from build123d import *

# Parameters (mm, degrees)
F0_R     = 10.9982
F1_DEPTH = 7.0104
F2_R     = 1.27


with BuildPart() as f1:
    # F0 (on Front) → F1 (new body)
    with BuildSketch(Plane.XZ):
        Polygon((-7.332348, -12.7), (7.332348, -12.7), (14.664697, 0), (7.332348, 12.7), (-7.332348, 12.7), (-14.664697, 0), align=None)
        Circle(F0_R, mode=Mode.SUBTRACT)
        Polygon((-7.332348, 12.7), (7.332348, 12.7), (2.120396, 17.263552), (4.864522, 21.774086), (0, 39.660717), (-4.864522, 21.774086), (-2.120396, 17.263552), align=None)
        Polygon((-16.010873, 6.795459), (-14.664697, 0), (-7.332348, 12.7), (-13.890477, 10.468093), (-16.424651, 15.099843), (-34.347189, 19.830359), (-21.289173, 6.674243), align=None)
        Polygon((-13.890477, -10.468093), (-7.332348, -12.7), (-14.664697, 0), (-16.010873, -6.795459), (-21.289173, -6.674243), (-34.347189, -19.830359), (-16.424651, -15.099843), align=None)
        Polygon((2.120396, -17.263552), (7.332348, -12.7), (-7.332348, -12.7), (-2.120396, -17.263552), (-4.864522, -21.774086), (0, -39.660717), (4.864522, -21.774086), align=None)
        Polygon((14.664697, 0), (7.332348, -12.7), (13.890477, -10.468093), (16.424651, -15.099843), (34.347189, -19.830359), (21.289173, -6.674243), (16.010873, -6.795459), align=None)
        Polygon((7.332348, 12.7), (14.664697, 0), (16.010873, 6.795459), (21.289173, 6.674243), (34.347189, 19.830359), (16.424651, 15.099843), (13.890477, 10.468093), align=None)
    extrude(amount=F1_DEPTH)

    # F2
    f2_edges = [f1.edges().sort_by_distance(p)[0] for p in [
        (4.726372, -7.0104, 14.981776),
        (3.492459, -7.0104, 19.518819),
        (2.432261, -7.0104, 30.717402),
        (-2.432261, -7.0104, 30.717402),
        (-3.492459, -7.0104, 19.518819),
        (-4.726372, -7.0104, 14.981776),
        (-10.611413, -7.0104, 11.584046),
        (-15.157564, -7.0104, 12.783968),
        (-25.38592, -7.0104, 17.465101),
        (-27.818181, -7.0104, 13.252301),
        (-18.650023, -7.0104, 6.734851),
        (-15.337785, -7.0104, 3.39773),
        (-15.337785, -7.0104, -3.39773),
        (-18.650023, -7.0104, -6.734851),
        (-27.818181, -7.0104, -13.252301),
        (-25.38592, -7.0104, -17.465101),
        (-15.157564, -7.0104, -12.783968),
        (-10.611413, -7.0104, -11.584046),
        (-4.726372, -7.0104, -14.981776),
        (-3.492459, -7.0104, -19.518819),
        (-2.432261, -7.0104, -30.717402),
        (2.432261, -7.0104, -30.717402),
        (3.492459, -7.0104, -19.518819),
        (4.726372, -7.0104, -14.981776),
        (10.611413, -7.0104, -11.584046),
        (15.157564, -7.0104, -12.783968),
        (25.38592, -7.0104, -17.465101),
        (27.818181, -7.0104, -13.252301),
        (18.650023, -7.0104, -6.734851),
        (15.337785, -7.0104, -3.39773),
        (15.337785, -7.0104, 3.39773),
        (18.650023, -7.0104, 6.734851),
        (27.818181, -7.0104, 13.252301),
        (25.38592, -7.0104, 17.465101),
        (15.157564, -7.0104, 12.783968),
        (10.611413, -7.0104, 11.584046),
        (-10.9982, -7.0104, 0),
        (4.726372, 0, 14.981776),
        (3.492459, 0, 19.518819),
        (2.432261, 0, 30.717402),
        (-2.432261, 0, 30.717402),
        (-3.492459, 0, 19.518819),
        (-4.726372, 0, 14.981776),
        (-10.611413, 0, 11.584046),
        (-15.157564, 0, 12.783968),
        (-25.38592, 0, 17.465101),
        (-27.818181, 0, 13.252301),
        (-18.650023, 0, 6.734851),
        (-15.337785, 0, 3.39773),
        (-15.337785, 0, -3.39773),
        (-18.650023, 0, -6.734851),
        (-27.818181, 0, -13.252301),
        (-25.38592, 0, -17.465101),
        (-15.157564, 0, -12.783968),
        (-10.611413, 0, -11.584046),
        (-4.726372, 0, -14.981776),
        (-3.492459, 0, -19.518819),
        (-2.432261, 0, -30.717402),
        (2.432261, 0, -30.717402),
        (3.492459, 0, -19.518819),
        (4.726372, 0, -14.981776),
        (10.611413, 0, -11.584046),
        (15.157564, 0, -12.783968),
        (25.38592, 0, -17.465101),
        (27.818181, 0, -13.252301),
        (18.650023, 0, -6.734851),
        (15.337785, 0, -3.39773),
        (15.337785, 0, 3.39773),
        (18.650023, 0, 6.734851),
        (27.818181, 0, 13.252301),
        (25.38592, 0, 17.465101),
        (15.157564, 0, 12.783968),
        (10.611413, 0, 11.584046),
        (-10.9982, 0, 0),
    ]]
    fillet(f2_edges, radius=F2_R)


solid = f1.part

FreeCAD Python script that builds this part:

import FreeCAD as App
import Part
import Sketcher

V = App.Vector
Q = App.Units.Quantity


def edges_at(feature, points):
    """Names of the edges that pass closest to the given points."""
    edges = feature.Shape.Edges
    near = lambda p: min(range(len(edges)), key=lambda i: edges[i].distToShape(Part.Vertex(*p))[0])
    return sorted({f"Edge{near(p) + 1}" for p in points})


def add_polygon(sketch, points):
    """Adds a closed chain of lines whose ends are joined by coincident constraints."""
    first, n = sketch.GeometryCount, len(points)
    for a, b in zip(points, points[1:] + points[:1]):
        sketch.addGeometry(Part.LineSegment(App.Vector(*a, 0), App.Vector(*b, 0)), False)
    for i in range(n):
        sketch.addConstraint(Sketcher.Constraint("Coincident", first + i, 2, first + (i + 1) % n, 1))

doc = App.newDocument("Part")
body = doc.addObject("PartDesign::Body", "Body")

sketch1 = body.newObject("Sketcher::SketchObject", "Sketch")
sketch1.AttachmentSupport = (doc.getObject("XZ_Plane"), [""])
sketch1.MapMode = "FlatFace"
add_polygon(sketch1, [(7, 13), (2, 17), (5, 22), (0, 40), (-5, 22), (-2, 17), (-7, 13), (-14, 10), (-16, 15), (-34, 20), (-21, 7), (-16, 7), (-15, 0), (-16, -7), (-21, -7), (-34, -20), (-16, -15), (-14, -10), (-7, -13), (-2, -17), (-5, -22), (0, -40), (5, -22), (2, -17), (7, -13), (14, -10), (16, -15), (34, -20), (21, -7), (16, -7), (15, 0), (16, 7), (21, 7), (34, 20), (16, 15), (14, 10)])
sketch1.addGeometry(Part.Circle(V(0, 0, 0), V(0, 0, 1), 11), False)
sketch1.addConstraint([
    Sketcher.Constraint("Coincident", 36, 3, -1, 1),
    Sketcher.Constraint("Symmetric", 0, 2, 18, 2, -1, 1),
    Sketcher.Constraint("Symmetric", 1, 2, 19, 2, -1, 1),
    Sketcher.Constraint("Symmetric", 2, 2, 20, 2, -1, 1),
    Sketcher.Constraint("Symmetric", 3, 2, 21, 2, -1, 1),
    Sketcher.Constraint("Symmetric", 4, 2, 22, 2, -1, 1),
    Sketcher.Constraint("Symmetric", 5, 2, 23, 2, -1, 1),
    Sketcher.Constraint("Symmetric", 6, 2, 24, 2, -1, 1),
    Sketcher.Constraint("Symmetric", 7, 2, 25, 2, -1, 1),
    Sketcher.Constraint("Symmetric", 8, 2, 26, 2, -1, 1),
    Sketcher.Constraint("Symmetric", 9, 2, 27, 2, -1, 1),
    Sketcher.Constraint("Symmetric", 10, 2, 28, 2, -1, 1),
    Sketcher.Constraint("Symmetric", 11, 2, 29, 2, -1, 1),
    Sketcher.Constraint("Symmetric", 12, 2, 30, 2, -1, 1),
    Sketcher.Constraint("Symmetric", 13, 2, 31, 2, -1, 1),
    Sketcher.Constraint("Symmetric", 14, 2, 32, 2, -1, 1),
    Sketcher.Constraint("Symmetric", 15, 2, 33, 2, -1, 1),
    Sketcher.Constraint("Symmetric", 16, 2, 34, 2, -1, 1),
    Sketcher.Constraint("Symmetric", 17, 2, 35, 2, -1, 1),
    Sketcher.Constraint("Symmetric", 1, 2, 3, 2, -2),
    Sketcher.Constraint("Symmetric", 0, 2, 4, 2, -2),
    Sketcher.Constraint("Symmetric", 17, 2, 23, 2, -2),
    Sketcher.Constraint("Symmetric", 16, 2, 24, 2, -2),
    Sketcher.Constraint("Symmetric", 15, 2, 25, 2, -2),
    Sketcher.Constraint("Symmetric", 14, 2, 26, 2, -2),
    Sketcher.Constraint("Symmetric", 13, 2, 27, 2, -2),
    Sketcher.Constraint("Symmetric", 12, 2, 28, 2, -2),
    Sketcher.Constraint("PointOnObject", 2, 2, -2),
    Sketcher.Constraint("PointOnObject", 11, 2, -1),
    Sketcher.Constraint("Equal", 5, 6),
    Sketcher.Constraint("Equal", 4, 7),
    Sketcher.Constraint("Equal", 3, 8),
    Sketcher.Constraint("Equal", 8, 9),
    Sketcher.Constraint("Equal", 7, 10),
    Sketcher.Constraint("Equal", 6, 11),
    Sketcher.Constraint("Diameter", 36, Q("0.866 in")),
    Sketcher.Constraint("DistanceY", -1, 1, 5, 2, Q("0.5 in")),
    Sketcher.Constraint("DistanceY", 9, 2, 7, 2, 8.4256),
    Sketcher.Constraint("DistanceX", 9, 2, 10, 2, 5.2783),
    Sketcher.Constraint("DistanceY", 14, 2, 12, 2, 13.0349),
    Sketcher.Constraint("DistanceX", 16, 2, 21, 2, 18.754999),
    Sketcher.Constraint("Distance", 1, 5.279692),
    Sketcher.Constraint("Distance", 2, 18.53632),
    Sketcher.Constraint("DistanceX", 7, 2, -1, 1, 16.424651),
    Sketcher.Constraint("DistanceY", -1, 1, 8, 2, 19.830359),
    Sketcher.Constraint("DistanceY", 1, 2, 2, 2, 17.886631),
    Sketcher.Constraint("DistanceX", 3, 2, 0, 2, 6.984918),
    Sketcher.Constraint("DistanceX", 5, 2, 1, 2, 12.19687),
])
pad1 = body.newObject("PartDesign::Pad", "Pad")
pad1.Profile = sketch1
pad1.Length = Q("0.276 in")
doc.recompute()

fillet = body.newObject("PartDesign::Fillet", "Fillet")
fillet.Base = (pad1, edges_at(pad1, [
    (4.726, -7.01, 14.982),
    (3.492, -7.01, 19.519),
    (2.432, -7.01, 30.717),
    (-2.432, -7.01, 30.717),
    (-3.492, -7.01, 19.519),
    (-4.726, -7.01, 14.982),
    (-10.611, -7.01, 11.584),
    (-15.158, -7.01, 12.784),
    (-25.386, -7.01, 17.465),
    (-27.818, -7.01, 13.252),
    (-18.65, -7.01, 6.735),
    (-15.338, -7.01, 3.398),
    (-15.338, -7.01, -3.398),
    (-18.65, -7.01, -6.735),
    (-27.818, -7.01, -13.252),
    (-25.386, -7.01, -17.465),
    (-15.158, -7.01, -12.784),
    (-10.611, -7.01, -11.584),
    (-4.726, -7.01, -14.982),
    (-3.492, -7.01, -19.519),
    (-2.432, -7.01, -30.717),
    (2.432, -7.01, -30.717),
    (3.492, -7.01, -19.519),
    (4.726, -7.01, -14.982),
    (10.611, -7.01, -11.584),
    (15.158, -7.01, -12.784),
    (25.386, -7.01, -17.465),
    (27.818, -7.01, -13.252),
    (18.65, -7.01, -6.735),
    (15.338, -7.01, -3.398),
    (15.338, -7.01, 3.398),
    (18.65, -7.01, 6.735),
    (27.818, -7.01, 13.252),
    (25.386, -7.01, 17.465),
    (15.158, -7.01, 12.784),
    (10.611, -7.01, 11.584),
    (-10.998, -7.01, 0),
    (4.726, 0, 14.982),
    (3.492, 0, 19.519),
    (2.432, 0, 30.717),
    (-2.432, 0, 30.717),
    (-3.492, 0, 19.519),
    (-4.726, 0, 14.982),
    (-10.611, 0, 11.584),
    (-15.158, 0, 12.784),
    (-25.386, 0, 17.465),
    (-27.818, 0, 13.252),
    (-18.65, 0, 6.735),
    (-15.338, 0, 3.398),
    (-15.338, 0, -3.398),
    (-18.65, 0, -6.735),
    (-27.818, 0, -13.252),
    (-25.386, 0, -17.465),
    (-15.158, 0, -12.784),
    (-10.611, 0, -11.584),
    (-4.726, 0, -14.982),
    (-3.492, 0, -19.519),
    (-2.432, 0, -30.717),
    (2.432, 0, -30.717),
    (3.492, 0, -19.519),
    (4.726, 0, -14.982),
    (10.611, 0, -11.584),
    (15.158, 0, -12.784),
    (25.386, 0, -17.465),
    (27.818, 0, -13.252),
    (18.65, 0, -6.735),
    (15.338, 0, -3.398),
    (15.338, 0, 3.398),
    (18.65, 0, 6.735),
    (27.818, 0, 13.252),
    (25.386, 0, 17.465),
    (15.158, 0, 12.784),
    (10.611, 0, 11.584),
    (-10.998, 0, 0),
]))
fillet.Radius = Q("0.05 in")

doc.recompute()
